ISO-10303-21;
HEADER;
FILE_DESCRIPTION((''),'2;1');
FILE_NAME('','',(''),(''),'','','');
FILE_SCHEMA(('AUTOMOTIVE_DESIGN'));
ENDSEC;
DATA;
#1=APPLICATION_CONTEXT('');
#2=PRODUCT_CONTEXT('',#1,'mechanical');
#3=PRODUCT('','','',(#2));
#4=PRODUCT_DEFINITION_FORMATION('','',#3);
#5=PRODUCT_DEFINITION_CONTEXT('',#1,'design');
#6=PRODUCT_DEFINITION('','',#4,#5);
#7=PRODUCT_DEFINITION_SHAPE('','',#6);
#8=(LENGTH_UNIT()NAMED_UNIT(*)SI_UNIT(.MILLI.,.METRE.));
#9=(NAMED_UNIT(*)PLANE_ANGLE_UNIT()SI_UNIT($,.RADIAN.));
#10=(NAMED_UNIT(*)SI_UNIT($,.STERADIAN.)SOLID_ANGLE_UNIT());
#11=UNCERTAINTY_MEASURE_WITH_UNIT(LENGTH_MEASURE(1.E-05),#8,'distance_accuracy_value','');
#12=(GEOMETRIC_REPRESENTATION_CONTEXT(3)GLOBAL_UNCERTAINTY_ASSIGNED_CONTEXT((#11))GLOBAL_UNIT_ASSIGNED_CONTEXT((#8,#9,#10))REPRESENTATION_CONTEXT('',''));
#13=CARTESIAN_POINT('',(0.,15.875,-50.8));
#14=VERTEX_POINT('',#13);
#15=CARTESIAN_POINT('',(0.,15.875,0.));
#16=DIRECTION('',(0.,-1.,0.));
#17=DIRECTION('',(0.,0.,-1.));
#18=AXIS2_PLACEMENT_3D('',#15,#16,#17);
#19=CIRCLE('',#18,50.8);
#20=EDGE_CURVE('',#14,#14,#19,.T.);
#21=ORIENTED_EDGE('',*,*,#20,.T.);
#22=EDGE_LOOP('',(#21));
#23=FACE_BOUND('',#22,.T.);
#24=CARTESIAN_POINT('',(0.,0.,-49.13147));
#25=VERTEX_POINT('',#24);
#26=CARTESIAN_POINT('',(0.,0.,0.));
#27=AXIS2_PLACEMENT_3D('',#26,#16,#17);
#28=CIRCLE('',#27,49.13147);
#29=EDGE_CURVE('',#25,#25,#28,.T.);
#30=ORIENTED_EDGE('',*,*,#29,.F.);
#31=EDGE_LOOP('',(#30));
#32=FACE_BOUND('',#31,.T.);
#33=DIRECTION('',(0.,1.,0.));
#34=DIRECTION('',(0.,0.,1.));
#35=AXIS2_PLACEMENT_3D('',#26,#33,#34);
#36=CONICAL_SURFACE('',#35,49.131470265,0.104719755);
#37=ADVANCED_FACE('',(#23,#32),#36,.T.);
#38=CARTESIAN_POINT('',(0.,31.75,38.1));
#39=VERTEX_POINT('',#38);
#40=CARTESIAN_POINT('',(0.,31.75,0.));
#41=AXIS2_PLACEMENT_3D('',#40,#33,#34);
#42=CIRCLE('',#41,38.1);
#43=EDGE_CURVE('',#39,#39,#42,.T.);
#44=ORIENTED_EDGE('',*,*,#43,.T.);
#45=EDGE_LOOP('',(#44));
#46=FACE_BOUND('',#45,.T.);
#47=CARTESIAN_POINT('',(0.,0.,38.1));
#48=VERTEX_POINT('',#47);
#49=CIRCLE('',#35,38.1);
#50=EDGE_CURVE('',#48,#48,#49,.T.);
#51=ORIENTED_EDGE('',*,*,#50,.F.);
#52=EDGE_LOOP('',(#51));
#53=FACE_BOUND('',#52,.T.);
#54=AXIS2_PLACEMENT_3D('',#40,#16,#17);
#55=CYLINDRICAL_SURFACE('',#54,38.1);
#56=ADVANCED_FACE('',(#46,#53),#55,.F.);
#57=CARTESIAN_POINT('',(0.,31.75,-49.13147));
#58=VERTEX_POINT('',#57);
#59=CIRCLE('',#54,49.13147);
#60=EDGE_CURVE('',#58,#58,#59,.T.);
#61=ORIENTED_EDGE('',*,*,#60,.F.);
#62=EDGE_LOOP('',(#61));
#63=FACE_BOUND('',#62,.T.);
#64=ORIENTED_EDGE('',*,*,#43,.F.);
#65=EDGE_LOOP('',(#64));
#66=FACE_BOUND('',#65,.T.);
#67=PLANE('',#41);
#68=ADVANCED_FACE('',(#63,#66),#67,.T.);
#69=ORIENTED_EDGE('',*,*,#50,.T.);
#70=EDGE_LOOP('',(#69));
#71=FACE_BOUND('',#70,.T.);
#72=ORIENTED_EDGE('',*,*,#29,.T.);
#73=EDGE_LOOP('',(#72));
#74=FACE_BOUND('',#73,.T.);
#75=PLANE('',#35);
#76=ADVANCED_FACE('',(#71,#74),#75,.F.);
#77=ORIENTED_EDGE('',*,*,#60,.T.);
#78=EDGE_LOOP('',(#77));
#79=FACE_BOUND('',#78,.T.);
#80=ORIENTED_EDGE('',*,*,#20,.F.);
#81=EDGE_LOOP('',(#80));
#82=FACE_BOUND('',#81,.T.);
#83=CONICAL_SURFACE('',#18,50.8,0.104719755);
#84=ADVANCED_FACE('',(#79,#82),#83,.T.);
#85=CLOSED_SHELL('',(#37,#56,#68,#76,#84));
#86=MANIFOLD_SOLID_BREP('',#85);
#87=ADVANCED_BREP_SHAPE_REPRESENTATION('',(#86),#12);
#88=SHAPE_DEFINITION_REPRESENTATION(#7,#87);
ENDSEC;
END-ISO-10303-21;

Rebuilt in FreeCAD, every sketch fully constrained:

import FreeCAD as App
import Part
import Sketcher

V = App.Vector
Q = App.Units.Quantity


def add_polygon(sketch, points):
    """Adds a closed chain of lines whose ends are joined by coincident constraints."""
    first, n = sketch.GeometryCount, len(points)
    for a, b in zip(points, points[1:] + points[:1]):
        sketch.addGeometry(Part.LineSegment(App.Vector(*a, 0), App.Vector(*b, 0)), False)
    for i in range(n):
        sketch.addConstraint(Sketcher.Constraint("Coincident", first + i, 2, first + (i + 1) % n, 1))

doc = App.newDocument("Part")
body = doc.addObject("PartDesign::Body", "Body")

sketch1 = body.newObject("Sketcher::SketchObject", "Sketch")
sketch1.AttachmentSupport = (doc.getObject("XZ_Plane"), [""])
sketch1.MapMode = "FlatFace"
sketch1.addGeometry(Part.Circle(V(0, 0, 0), V(0, 0, 1), 51), False)
sketch1.addGeometry(Part.Circle(V(0, 0, 0), V(0, 0, 1), 38), False)
sketch1.addConstraint(Sketcher.Constraint("Coincident", 0, 3, -1, 1))
sketch1.addConstraint(Sketcher.Constraint("Coincident", 1, 3, -1, 1))
sketch1.addConstraint(Sketcher.Constraint("Diameter", 0, Q("4 in")))
sketch1.addConstraint(Sketcher.Constraint("Diameter", 1, Q("3 in")))
pad1 = body.newObject("PartDesign::Pad", "Pad")
pad1.Profile = sketch1
pad1.Length = Q("1.25 in")
pad1.Reversed = True

sketch2 = body.newObject("Sketcher::SketchObject", "Sketch001")
sketch2.AttachmentSupport = (doc.getObject("YZ_Plane"), [""])
sketch2.MapMode = "FlatFace"
add_polygon(sketch2, [(16, 51), (32, 49), (32, 69), (0, 69), (0, 49)])
sketch2.addConstraint(Sketcher.Constraint("Vertical", 1))
sketch2.addConstraint(Sketcher.Constraint("Horizontal", 2))
sketch2.addConstraint(Sketcher.Constraint("Vertical", 3))
sketch2.addConstraint(Sketcher.Constraint("PointOnObject", 2, 2, -2))
sketch2.addConstraint(Sketcher.Constraint("Horizontal", 0, 2, 3, 2))
sketch2.addConstraint(Sketcher.Constraint("Equal", 0, 4))
sketch2.addConstraint(Sketcher.Constraint("DistanceY", -1, 1, 4, 2, Q("2 in")))
sketch2.addConstraint(Sketcher.Constraint("Angle", 0, Q("-6 deg")))
sketch2.addConstraint(Sketcher.Constraint("DistanceX", 2, 2, 2, 1, Q("1.25 in")))
sketch2.addConstraint(Sketcher.Constraint("DistanceY", 1, 1, 1, 2, 20.0))
groove = body.newObject("PartDesign::Groove", "Groove")
groove.Profile = sketch2
groove.ReferenceAxis = (sketch2, ["H_Axis"])
groove.Angle = 360

doc.recompute()
